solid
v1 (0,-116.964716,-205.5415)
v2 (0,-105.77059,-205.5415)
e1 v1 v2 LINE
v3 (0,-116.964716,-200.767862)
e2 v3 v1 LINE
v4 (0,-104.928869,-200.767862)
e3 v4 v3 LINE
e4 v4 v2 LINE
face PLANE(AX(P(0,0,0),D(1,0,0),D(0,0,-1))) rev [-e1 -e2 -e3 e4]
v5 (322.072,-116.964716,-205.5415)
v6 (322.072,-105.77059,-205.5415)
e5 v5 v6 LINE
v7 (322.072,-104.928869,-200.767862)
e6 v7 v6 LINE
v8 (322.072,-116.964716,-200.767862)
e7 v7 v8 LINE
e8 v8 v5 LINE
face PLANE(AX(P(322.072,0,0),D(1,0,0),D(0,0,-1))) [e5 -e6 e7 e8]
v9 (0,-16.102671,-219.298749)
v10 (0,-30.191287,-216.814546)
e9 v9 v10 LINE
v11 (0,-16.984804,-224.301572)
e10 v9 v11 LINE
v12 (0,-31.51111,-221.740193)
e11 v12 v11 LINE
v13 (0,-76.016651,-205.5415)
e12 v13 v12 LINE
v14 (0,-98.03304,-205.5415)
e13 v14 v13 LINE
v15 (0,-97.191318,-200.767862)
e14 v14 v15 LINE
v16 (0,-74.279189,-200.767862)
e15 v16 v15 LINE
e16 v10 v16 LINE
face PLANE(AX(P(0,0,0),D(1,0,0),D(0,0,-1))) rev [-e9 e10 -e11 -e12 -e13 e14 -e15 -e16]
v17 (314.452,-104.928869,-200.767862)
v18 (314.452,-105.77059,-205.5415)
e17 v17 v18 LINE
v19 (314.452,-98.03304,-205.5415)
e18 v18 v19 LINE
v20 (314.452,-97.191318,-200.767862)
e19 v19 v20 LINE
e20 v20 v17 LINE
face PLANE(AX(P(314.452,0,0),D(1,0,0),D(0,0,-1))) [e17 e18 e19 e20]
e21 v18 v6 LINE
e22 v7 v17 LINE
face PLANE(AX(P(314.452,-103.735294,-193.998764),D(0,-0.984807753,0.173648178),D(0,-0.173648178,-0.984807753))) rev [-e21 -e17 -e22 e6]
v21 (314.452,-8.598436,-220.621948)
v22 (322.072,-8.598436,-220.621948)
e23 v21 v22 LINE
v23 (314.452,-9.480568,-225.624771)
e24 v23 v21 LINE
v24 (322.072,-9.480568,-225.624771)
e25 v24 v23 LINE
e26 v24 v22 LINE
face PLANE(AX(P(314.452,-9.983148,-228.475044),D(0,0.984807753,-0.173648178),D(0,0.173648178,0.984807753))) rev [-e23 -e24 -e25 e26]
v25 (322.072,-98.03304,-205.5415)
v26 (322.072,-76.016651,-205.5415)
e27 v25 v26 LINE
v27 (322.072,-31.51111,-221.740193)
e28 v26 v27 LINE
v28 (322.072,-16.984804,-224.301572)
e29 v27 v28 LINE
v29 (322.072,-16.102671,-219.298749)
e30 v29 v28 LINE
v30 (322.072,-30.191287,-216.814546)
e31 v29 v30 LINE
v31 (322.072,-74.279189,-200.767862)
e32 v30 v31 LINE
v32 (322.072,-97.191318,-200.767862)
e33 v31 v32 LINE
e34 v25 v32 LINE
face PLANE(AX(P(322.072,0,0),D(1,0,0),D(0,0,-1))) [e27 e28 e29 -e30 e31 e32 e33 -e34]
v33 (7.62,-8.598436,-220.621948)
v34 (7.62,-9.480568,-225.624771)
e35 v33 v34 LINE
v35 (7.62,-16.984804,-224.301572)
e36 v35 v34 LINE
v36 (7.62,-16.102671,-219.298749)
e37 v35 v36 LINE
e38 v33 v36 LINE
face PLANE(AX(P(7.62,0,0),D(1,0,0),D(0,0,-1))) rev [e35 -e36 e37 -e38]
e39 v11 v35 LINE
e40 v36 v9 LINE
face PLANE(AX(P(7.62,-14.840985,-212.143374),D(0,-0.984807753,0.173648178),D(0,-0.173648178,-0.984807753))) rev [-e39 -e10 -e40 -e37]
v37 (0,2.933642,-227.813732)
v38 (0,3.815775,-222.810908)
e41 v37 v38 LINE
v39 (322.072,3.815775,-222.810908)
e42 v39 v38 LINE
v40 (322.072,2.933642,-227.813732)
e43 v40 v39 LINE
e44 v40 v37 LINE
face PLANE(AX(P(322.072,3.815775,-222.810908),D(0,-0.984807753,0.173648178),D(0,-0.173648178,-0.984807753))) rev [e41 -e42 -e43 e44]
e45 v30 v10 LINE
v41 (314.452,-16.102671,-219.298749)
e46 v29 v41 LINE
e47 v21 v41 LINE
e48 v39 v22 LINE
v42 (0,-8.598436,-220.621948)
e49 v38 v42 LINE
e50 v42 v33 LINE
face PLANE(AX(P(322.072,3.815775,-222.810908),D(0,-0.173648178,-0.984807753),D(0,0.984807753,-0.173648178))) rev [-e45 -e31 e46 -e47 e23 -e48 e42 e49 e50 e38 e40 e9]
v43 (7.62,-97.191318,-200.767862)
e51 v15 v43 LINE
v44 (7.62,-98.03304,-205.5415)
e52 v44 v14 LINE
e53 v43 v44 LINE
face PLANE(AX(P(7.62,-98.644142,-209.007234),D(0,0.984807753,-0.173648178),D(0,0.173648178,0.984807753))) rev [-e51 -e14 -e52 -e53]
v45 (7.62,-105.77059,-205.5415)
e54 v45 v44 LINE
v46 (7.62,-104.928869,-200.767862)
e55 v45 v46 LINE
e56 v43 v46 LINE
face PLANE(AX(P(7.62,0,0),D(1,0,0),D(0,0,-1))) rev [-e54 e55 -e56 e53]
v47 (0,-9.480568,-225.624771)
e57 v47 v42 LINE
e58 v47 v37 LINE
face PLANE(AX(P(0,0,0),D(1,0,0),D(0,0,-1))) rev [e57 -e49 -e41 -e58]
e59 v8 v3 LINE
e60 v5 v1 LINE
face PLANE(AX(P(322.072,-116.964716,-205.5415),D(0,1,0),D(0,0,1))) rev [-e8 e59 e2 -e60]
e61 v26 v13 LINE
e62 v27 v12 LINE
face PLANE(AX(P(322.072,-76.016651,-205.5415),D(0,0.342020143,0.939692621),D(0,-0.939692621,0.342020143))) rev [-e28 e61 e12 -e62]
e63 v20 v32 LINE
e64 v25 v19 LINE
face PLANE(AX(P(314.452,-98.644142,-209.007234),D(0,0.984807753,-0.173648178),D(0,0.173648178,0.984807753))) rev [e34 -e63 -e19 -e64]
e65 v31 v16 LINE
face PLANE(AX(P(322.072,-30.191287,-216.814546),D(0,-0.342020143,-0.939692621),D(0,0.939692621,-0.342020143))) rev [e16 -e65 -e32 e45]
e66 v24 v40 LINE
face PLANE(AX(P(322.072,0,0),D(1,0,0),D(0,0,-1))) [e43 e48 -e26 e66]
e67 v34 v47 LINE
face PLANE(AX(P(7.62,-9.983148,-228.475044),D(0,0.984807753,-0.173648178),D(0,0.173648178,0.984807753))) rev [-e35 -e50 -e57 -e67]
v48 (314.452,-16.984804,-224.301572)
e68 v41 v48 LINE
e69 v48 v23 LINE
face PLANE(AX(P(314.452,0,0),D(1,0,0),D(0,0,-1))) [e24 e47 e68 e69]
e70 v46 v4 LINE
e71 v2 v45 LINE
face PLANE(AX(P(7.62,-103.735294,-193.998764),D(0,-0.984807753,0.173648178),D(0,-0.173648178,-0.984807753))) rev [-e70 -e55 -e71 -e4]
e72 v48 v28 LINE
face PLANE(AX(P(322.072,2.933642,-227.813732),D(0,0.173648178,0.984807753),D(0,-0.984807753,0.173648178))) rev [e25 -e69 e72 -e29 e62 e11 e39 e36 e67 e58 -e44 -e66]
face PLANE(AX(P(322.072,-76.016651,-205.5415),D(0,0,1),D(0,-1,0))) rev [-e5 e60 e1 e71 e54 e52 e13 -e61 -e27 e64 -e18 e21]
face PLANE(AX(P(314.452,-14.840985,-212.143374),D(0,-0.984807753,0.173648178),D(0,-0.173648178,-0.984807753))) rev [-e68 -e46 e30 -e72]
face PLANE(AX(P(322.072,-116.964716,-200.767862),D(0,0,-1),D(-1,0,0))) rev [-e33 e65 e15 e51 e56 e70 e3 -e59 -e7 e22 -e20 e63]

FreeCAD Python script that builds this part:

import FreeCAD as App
import Part
import Sketcher

V = App.Vector
Q = App.Units.Quantity

doc = App.newDocument("Part")
body = doc.addObject("PartDesign::Body", "Body")

sketch1 = body.newObject("Sketcher::SketchObject", "Sketch")
sketch1.AttachmentSupport = (doc.getObject("YZ_Plane"), [""])
sketch1.MapMode = "FlatFace"
sketch1.addGeometry(Part.LineSegment(V(2.9, -227.8, 0), V(3.8, -222.8, 0)), False)
sketch1.addGeometry(Part.LineSegment(V(3.8, -222.8, 0), V(-30.2, -216.8, 0)), False)
sketch1.addGeometry(Part.LineSegment(V(-30.2, -216.8, 0), V(-74.3, -200.8, 0)), False)
sketch1.addGeometry(Part.LineSegment(V(-74.3, -200.8, 0), V(-117, -200.8, 0)), False)
sketch1.addGeometry(Part.LineSegment(V(-117, -200.8, 0), V(-117, -205.5, 0)), False)
sketch1.addGeometry(Part.LineSegment(V(-117, -205.5, 0), V(-76, -205.5, 0)), False)
sketch1.addGeometry(Part.LineSegment(V(-76, -205.5, 0), V(-31.5, -221.7, 0)), False)
sketch1.addGeometry(Part.LineSegment(V(-31.5, -221.7, 0), V(2.9, -227.8, 0)), False)
sketch1.addConstraint(Sketcher.Constraint("Coincident", 0, 2, 1, 1))
sketch1.addConstraint(Sketcher.Constraint("Coincident", 1, 2, 2, 1))
sketch1.addConstraint(Sketcher.Constraint("Coincident", 2, 2, 3, 1))
sketch1.addConstraint(Sketcher.Constraint("Coincident", 3, 2, 4, 1))
sketch1.addConstraint(Sketcher.Constraint("Coincident", 4, 2, 5, 1))
sketch1.addConstraint(Sketcher.Constraint("Coincident", 5, 2, 6, 1))
sketch1.addConstraint(Sketcher.Constraint("Coincident", 6, 2, 7, 1))
sketch1.addConstraint(Sketcher.Constraint("Coincident", 7, 2, 0, 1))
sketch1.addConstraint(Sketcher.Constraint("Horizontal", 3))
sketch1.addConstraint(Sketcher.Constraint("Vertical", 4))
sketch1.addConstraint(Sketcher.Constraint("Horizontal", 5))
sketch1.addConstraint(Sketcher.Constraint("Perpendicular", 0, 1))
sketch1.addConstraint(Sketcher.Constraint("Parallel", 2, 6))
sketch1.addConstraint(Sketcher.Constraint("Parallel", 1, 7))
sketch1.addConstraint(Sketcher.Constraint("Angle", 0, Q("80 deg")))
sketch1.addConstraint(Sketcher.Constraint("Angle", 2, Q("160 deg")))
sketch1.addConstraint(Sketcher.Constraint("Distance", 0, Q("0.2 in")))
sketch1.addConstraint(Sketcher.Constraint("DistanceY", 4, 2, 4, 1, 4.773639))
sketch1.addConstraint(Sketcher.Constraint("DistanceY", 4, 2, -1, 1, 205.5415))
sketch1.addConstraint(Sketcher.Constraint("DistanceX", 2, 2, 1, 2, 44.087901))
sketch1.addConstraint(Sketcher.Constraint("Distance", 7, 34.976118))
sketch1.addConstraint(Sketcher.Constraint("DistanceX", 3, 2, 3, 1, 42.685528))
sketch1.addConstraint(Sketcher.Constraint("DistanceX", 5, 1, 5, 2, 40.948065))
sketch1.addConstraint(Sketcher.Constraint("DistanceX", 2, 2, -1, 1, 74.279189))
pad1 = body.newObject("PartDesign::Pad", "Pad")
pad1.Profile = sketch1
pad1.Length = Q("12.68 in")

sketch2 = body.newObject("Sketcher::SketchObject", "Sketch001")
sketch2.AttachmentSupport = (doc.getObject("YZ_Plane"), [""])
sketch2.MapMode = "FlatFace"
sketch2.addGeometry(Part.LineSegment(V(-7, -213, 0), V(-10, -228, 0)), False)
sketch2.addGeometry(Part.LineSegment(V(-10, -228, 0), V(-17, -227, 0)), False)
sketch2.addGeometry(Part.LineSegment(V(-17, -227, 0), V(-15, -212, 0)), False)
sketch2.addGeometry(Part.LineSegment(V(-15, -212, 0), V(-7, -213, 0)), False)
sketch2.addGeometry(Part.LineSegment(V(-96, -194, 0), V(-99, -209, 0)), False)
sketch2.addGeometry(Part.LineSegment(V(-99, -209, 0), V(-106, -208, 0)), False)
sketch2.addGeometry(Part.LineSegment(V(-106, -208, 0), V(-104, -194, 0)), False)
sketch2.addGeometry(Part.LineSegment(V(-104, -194, 0), V(-96, -194, 0)), False)
sketch2.addConstraint(Sketcher.Constraint("Coincident", 0, 2, 1, 1))
sketch2.addConstraint(Sketcher.Constraint("Coincident", 1, 2, 2, 1))
sketch2.addConstraint(Sketcher.Constraint("Coincident", 2, 2, 3, 1))
sketch2.addConstraint(Sketcher.Constraint("Coincident", 3, 2, 0, 1))
sketch2.addConstraint(Sketcher.Constraint("Coincident", 4, 2, 5, 1))
sketch2.addConstraint(Sketcher.Constraint("Coincident", 5, 2, 6, 1))
sketch2.addConstraint(Sketcher.Constraint("Coincident", 6, 2, 7, 1))
sketch2.addConstraint(Sketcher.Constraint("Coincident", 7, 2, 4, 1))
sketch2.addConstraint(Sketcher.Constraint("Horizontal", 7))
sketch2.addConstraint(Sketcher.Constraint("Perpendicular", 0, 1))
sketch2.addConstraint(Sketcher.Constraint("Perpendicular", 1, 2))
sketch2.addConstraint(Sketcher.Constraint("Perpendicular", 2, 3))
sketch2.addConstraint(Sketcher.Constraint("Perpendicular", 3, 4))
sketch2.addConstraint(Sketcher.Constraint("Perpendicular", 4, 5))
sketch2.addConstraint(Sketcher.Constraint("Perpendicular", 5, 6))
sketch2.addConstraint(Sketcher.Constraint("Equal", 2, 4))
sketch2.addConstraint(Sketcher.Constraint("Equal", 3, 5))
sketch2.addConstraint(Sketcher.Constraint("Angle", 0, Q("-100 deg")))
sketch2.addConstraint(Sketcher.Constraint("Distance", 0, Q("0.6 in")))
sketch2.addConstraint(Sketcher.Constraint("Distance", 1, Q("0.3 in")))
sketch2.addConstraint(Sketcher.Constraint("DistanceX", 0, 2, -1, 1, 9.983148))
sketch2.addConstraint(Sketcher.Constraint("DistanceX", 4, 2, -1, 1, 98.644142))
sketch2.addConstraint(Sketcher.Constraint("DistanceY", 1, 2, 4, 2, 18.144611))
sketch2.addConstraint(Sketcher.Constraint("DistanceY", 0, 2, -1, 1, 228.475044))
pocket1 = body.newObject("PartDesign::Pocket", "Pocket")
pocket1.Profile = sketch2
pocket1.Length = Q("0.3 in")
pocket1.Reversed = True

sketch3 = body.newObject("Sketcher::SketchObject", "Sketch002")
sketch3.AttachmentSupport = (doc.getObject("YZ_Plane"), [""])
sketch3.MapMode = "FlatFace"
sketch3.AttachmentOffset = App.Placement(V(0, 0, 12.68 * 25.4), App.Rotation())
sketch3.addGeometry(Part.LineSegment(V(-10, -228, 0), V(-7, -213, 0)), False)
sketch3.addGeometry(Part.LineSegment(V(-7, -213, 0), V(-15, -212, 0)), False)
sketch3.addGeometry(Part.LineSegment(V(-15, -212, 0), V(-17, -227, 0)), False)
sketch3.addGeometry(Part.LineSegment(V(-17, -227, 0), V(-10, -228, 0)), False)
sketch3.addGeometry(Part.LineSegment(V(-104, -194, 0), V(-106, -208, 0)), False)
sketch3.addGeometry(Part.LineSegment(V(-106, -208, 0), V(-99, -209, 0)), False)
sketch3.addGeometry(Part.LineSegment(V(-99, -209, 0), V(-96, -194, 0)), False)
sketch3.addGeometry(Part.LineSegment(V(-96, -194, 0), V(-104, -194, 0)), False)
sketch3.addConstraint(Sketcher.Constraint("Coincident", 0, 2, 1, 1))
sketch3.addConstraint(Sketcher.Constraint("Coincident", 1, 2, 2, 1))
sketch3.addConstraint(Sketcher.Constraint("Coincident", 2, 2, 3, 1))
sketch3.addConstraint(Sketcher.Constraint("Coincident", 3, 2, 0, 1))
sketch3.addConstraint(Sketcher.Constraint("Coincident", 4, 2, 5, 1))
sketch3.addConstraint(Sketcher.Constraint("Coincident", 5, 2, 6, 1))
sketch3.addConstraint(Sketcher.Constraint("Coincident", 6, 2, 7, 1))
sketch3.addConstraint(Sketcher.Constraint("Coincident", 7, 2, 4, 1))
sketch3.addConstraint(Sketcher.Constraint("Horizontal", 7))
sketch3.addConstraint(Sketcher.Constraint("Perpendicular", 0, 1))
sketch3.addConstraint(Sketcher.Constraint("Perpendicular", 1, 2))
sketch3.addConstraint(Sketcher.Constraint("Perpendicular", 2, 3))
sketch3.addConstraint(Sketcher.Constraint("Perpendicular", 3, 4))
sketch3.addConstraint(Sketcher.Constraint("Perpendicular", 4, 5))
sketch3.addConstraint(Sketcher.Constraint("Perpendicular", 5, 6))
sketch3.addConstraint(Sketcher.Constraint("Equal", 3, 5))
sketch3.addConstraint(Sketcher.Constraint("Equal", 2, 6))
sketch3.addConstraint(Sketcher.Constraint("Angle", 0, Q("80 deg")))
sketch3.addConstraint(Sketcher.Constraint("Distance", 0, Q("0.6 in")))
sketch3.addConstraint(Sketcher.Constraint("Distance", 1, Q("0.3 in")))
sketch3.addConstraint(Sketcher.Constraint("DistanceX", 0, 2, -1, 1, 7.33675))
sketch3.addConstraint(Sketcher.Constraint("DistanceX", 5, 2, -1, 1, 98.644142))
sketch3.addConstraint(Sketcher.Constraint("DistanceY", 2, 2, 4, 2, 19.46781))
sketch3.addConstraint(Sketcher.Constraint("DistanceY", 0, 2, -1, 1, 213.466574))
pocket2 = body.newObject("PartDesign::Pocket", "Pocket001")
pocket2.Profile = sketch3
pocket2.Length = Q("0.3 in")

doc.recompute()
